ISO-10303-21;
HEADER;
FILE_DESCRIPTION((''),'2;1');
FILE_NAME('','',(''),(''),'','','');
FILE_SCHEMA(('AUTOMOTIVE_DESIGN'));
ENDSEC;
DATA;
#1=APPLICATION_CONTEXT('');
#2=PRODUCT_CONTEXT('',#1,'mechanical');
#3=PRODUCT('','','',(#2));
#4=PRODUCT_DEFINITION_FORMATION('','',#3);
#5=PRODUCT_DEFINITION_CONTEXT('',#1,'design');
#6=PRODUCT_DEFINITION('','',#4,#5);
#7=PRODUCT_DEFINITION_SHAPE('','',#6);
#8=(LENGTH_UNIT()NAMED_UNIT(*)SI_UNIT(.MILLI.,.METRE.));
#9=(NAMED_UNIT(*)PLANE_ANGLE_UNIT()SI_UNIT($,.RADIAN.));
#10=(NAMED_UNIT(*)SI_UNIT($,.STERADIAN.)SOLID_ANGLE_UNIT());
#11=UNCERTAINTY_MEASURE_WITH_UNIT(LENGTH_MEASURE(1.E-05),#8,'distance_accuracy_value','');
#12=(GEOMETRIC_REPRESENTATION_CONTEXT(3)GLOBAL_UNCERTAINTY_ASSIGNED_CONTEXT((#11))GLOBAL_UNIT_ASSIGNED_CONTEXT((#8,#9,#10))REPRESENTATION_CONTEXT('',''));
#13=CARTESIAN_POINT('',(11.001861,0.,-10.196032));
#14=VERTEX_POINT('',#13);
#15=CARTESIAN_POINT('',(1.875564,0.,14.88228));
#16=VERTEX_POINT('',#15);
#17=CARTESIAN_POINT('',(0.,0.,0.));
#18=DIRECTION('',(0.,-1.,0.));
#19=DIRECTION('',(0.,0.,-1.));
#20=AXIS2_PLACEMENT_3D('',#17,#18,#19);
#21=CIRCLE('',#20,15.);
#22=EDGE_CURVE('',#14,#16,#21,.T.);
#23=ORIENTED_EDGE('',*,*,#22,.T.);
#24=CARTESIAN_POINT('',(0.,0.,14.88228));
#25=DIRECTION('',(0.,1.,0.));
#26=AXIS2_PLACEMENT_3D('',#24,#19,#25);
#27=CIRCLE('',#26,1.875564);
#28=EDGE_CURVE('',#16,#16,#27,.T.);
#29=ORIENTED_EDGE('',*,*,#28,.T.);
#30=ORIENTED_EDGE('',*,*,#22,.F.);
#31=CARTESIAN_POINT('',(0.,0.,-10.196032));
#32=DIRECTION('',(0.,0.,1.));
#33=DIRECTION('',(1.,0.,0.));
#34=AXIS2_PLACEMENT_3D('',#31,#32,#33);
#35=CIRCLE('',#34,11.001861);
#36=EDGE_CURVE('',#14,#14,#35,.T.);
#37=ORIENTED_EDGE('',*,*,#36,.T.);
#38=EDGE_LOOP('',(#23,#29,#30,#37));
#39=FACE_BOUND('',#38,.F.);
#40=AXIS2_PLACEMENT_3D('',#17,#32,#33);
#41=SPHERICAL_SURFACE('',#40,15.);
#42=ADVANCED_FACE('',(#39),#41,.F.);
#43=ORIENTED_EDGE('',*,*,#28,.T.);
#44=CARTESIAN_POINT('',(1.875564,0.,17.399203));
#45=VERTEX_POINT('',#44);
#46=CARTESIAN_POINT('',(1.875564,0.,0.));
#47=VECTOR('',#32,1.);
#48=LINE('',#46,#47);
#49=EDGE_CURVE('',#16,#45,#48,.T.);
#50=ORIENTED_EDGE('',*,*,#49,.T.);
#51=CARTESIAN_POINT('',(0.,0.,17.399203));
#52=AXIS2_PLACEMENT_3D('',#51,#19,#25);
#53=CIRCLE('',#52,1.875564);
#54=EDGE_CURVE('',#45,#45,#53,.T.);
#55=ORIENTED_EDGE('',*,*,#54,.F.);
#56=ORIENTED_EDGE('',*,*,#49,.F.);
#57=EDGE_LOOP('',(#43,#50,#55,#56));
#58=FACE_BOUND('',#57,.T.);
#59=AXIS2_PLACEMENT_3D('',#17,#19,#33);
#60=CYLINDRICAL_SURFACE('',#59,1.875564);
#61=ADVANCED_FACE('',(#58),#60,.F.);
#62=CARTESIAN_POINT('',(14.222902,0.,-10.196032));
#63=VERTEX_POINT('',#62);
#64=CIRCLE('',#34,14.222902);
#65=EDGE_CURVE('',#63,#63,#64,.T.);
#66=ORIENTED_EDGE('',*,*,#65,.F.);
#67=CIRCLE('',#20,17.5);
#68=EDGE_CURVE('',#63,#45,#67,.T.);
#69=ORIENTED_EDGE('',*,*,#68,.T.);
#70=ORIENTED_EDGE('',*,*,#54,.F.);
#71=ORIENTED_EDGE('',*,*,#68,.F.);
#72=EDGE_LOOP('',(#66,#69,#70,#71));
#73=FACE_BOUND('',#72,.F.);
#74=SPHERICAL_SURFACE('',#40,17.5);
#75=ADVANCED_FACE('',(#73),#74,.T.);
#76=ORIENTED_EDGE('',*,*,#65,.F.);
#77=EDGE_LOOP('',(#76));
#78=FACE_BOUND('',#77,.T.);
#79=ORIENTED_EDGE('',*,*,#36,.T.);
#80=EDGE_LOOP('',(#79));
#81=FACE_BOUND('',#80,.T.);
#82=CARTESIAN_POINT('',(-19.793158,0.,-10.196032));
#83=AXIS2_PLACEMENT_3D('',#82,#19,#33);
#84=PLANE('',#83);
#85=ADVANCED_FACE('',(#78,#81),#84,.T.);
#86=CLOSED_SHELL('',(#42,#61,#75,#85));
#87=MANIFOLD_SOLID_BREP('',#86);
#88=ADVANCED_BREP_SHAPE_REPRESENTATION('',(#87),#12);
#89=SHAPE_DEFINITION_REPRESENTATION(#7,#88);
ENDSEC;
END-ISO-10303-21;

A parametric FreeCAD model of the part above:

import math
import FreeCAD as App
import Part
import Sketcher


def add_polygon(sketch, points):
    """Adds a closed chain of lines whose ends are joined by coincident constraints."""
    first, n = sketch.GeometryCount, len(points)
    for a, b in zip(points, points[1:] + points[:1]):
        sketch.addGeometry(Part.LineSegment(App.Vector(*a, 0), App.Vector(*b, 0)), False)
    for i in range(n):
        sketch.addConstraint(Sketcher.Constraint("Coincident", first + i, 2, first + (i + 1) % n, 1))

doc = App.newDocument("Part")
params = doc.addObject("Spreadsheet::Sheet", "Params")
for row, (alias, value) in enumerate([
    ("sketch1_radius", "17.5 mm"),
    ("revolution_angle", "360 deg"),
    ("sketch2_radius", "15 mm"),
    ("revolution2_angle", "360 deg"),
    ("pocket1_length", "60 mm"),
    ("pocket2_length", "25 mm"),
], start=1):
    params.set(f"A{row}", alias)
    params.set(f"B{row}", "=" + value)
    params.setAlias(f"B{row}", alias)

body = doc.addObject("PartDesign::Body", "Body")

sketch1 = body.newObject("Sketcher::SketchObject", "Sketch")
sketch1.AttachmentSupport = (doc.getObject("XZ_Plane"), [""])
sketch1.MapMode = "FlatFace"
sketch1.addGeometry([
    Part.ArcOfCircle(Part.Circle(App.Vector(0, 0, 0), App.Vector(0, 0, 1), 18), math.radians(-90), math.radians(90)),
    Part.LineSegment(App.Vector(0, 18, 0), App.Vector(0, -18, 0)),
], False)
sketch1.addConstraint([
    Sketcher.Constraint("Coincident", 0, 1, 1, 2),
    Sketcher.Constraint("Coincident", 1, 1, 0, 2),
    Sketcher.Constraint("Vertical", 1),
    Sketcher.Constraint("Coincident", 0, 3, -1, 1),
    Sketcher.Constraint("PointOnObject", 0, 1, -2),
    Sketcher.Constraint("Radius", 0, 17.5),
])
sketch1.setExpression("Constraints[5]", "Params.sketch1_radius")
revolution = body.newObject("PartDesign::Revolution", "Revolution")
revolution.Profile = sketch1
revolution.ReferenceAxis = (sketch1, ["V_Axis"])
revolution.setExpression("Angle", "Params.revolution_angle")
body2 = doc.addObject("PartDesign::Body", "Body001")

sketch2 = body2.newObject("Sketcher::SketchObject", "Sketch001")
sketch2.AttachmentSupport = (doc.getObject("XZ_Plane001"), [""])
sketch2.MapMode = "FlatFace"
sketch2.addGeometry([
    Part.LineSegment(App.Vector(0, 15, 0), App.Vector(0, -15, 0)),
    Part.ArcOfCircle(Part.Circle(App.Vector(0, 0, 0), App.Vector(0, 0, 1), 15), math.radians(-90), math.radians(90)),
], False)
sketch2.addConstraint([
    Sketcher.Constraint("Coincident", 0, 1, 1, 2),
    Sketcher.Constraint("Coincident", 1, 1, 0, 2),
    Sketcher.Constraint("Vertical", 0),
    Sketcher.Constraint("Coincident", 1, 3, -1, 1),
    Sketcher.Constraint("PointOnObject", 0, 1, -2),
    Sketcher.Constraint("Radius", 1, 15.0),
])
sketch2.setExpression("Constraints[5]", "Params.sketch2_radius")
revolution2 = body2.newObject("PartDesign::Revolution", "Revolution001")
revolution2.Profile = sketch2
revolution2.ReferenceAxis = (sketch2, ["V_Axis"])
revolution2.setExpression("Angle", "Params.revolution2_angle")
doc.recompute()

boolean = body.newObject("PartDesign::Boolean", "Boolean")
boolean.Type = "Cut"
boolean.addObjects([body2])

sketch3 = body.newObject("Sketcher::SketchObject", "Sketch002")
sketch3.AttachmentSupport = (doc.getObject("XZ_Plane"), [""])
sketch3.MapMode = "FlatFace"
add_polygon(sketch3, [(-20, -10), (-20, -21), (22, -21), (22, -10)])
sketch3.addConstraint([
    Sketcher.Constraint("Vertical", 0),
    Sketcher.Constraint("Horizontal", 1),
    Sketcher.Constraint("Vertical", 2),
    Sketcher.Constraint("Horizontal", 3),
    Sketcher.Constraint("DistanceY", 0, 2, 0, 1, 10.794579),
    Sketcher.Constraint("DistanceX", 1, 1, 1, 2, 42.267536),
    Sketcher.Constraint("DistanceY", 0, 2, -1, 1, 20.99061),
    Sketcher.Constraint("DistanceX", -1, 1, 1, 2, 22.474378),
])
pocket1 = body.newObject("PartDesign::Pocket", "Pocket")
pocket1.Profile = sketch3
pocket1.setExpression("Length", "Params.pocket1_length")
pocket1.Midplane = True

sketch4 = body.newObject("Sketcher::SketchObject", "Sketch003")
sketch4.AttachmentSupport = (doc.getObject("XY_Plane"), [""])
sketch4.MapMode = "FlatFace"
sketch4.addGeometry(Part.Circle(App.Vector(0, 0, 0), App.Vector(0, 0, 1), 1.9), False)
sketch4.addConstraint([
    Sketcher.Constraint("Coincident", 0, 3, -1, 1),
    Sketcher.Constraint("Diameter", 0, 3.751128),
])
pocket2 = body.newObject("PartDesign::Pocket", "Pocket001")
pocket2.Profile = sketch4
pocket2.setExpression("Length", "Params.pocket2_length")
pocket2.Reversed = True

doc.recompute()
